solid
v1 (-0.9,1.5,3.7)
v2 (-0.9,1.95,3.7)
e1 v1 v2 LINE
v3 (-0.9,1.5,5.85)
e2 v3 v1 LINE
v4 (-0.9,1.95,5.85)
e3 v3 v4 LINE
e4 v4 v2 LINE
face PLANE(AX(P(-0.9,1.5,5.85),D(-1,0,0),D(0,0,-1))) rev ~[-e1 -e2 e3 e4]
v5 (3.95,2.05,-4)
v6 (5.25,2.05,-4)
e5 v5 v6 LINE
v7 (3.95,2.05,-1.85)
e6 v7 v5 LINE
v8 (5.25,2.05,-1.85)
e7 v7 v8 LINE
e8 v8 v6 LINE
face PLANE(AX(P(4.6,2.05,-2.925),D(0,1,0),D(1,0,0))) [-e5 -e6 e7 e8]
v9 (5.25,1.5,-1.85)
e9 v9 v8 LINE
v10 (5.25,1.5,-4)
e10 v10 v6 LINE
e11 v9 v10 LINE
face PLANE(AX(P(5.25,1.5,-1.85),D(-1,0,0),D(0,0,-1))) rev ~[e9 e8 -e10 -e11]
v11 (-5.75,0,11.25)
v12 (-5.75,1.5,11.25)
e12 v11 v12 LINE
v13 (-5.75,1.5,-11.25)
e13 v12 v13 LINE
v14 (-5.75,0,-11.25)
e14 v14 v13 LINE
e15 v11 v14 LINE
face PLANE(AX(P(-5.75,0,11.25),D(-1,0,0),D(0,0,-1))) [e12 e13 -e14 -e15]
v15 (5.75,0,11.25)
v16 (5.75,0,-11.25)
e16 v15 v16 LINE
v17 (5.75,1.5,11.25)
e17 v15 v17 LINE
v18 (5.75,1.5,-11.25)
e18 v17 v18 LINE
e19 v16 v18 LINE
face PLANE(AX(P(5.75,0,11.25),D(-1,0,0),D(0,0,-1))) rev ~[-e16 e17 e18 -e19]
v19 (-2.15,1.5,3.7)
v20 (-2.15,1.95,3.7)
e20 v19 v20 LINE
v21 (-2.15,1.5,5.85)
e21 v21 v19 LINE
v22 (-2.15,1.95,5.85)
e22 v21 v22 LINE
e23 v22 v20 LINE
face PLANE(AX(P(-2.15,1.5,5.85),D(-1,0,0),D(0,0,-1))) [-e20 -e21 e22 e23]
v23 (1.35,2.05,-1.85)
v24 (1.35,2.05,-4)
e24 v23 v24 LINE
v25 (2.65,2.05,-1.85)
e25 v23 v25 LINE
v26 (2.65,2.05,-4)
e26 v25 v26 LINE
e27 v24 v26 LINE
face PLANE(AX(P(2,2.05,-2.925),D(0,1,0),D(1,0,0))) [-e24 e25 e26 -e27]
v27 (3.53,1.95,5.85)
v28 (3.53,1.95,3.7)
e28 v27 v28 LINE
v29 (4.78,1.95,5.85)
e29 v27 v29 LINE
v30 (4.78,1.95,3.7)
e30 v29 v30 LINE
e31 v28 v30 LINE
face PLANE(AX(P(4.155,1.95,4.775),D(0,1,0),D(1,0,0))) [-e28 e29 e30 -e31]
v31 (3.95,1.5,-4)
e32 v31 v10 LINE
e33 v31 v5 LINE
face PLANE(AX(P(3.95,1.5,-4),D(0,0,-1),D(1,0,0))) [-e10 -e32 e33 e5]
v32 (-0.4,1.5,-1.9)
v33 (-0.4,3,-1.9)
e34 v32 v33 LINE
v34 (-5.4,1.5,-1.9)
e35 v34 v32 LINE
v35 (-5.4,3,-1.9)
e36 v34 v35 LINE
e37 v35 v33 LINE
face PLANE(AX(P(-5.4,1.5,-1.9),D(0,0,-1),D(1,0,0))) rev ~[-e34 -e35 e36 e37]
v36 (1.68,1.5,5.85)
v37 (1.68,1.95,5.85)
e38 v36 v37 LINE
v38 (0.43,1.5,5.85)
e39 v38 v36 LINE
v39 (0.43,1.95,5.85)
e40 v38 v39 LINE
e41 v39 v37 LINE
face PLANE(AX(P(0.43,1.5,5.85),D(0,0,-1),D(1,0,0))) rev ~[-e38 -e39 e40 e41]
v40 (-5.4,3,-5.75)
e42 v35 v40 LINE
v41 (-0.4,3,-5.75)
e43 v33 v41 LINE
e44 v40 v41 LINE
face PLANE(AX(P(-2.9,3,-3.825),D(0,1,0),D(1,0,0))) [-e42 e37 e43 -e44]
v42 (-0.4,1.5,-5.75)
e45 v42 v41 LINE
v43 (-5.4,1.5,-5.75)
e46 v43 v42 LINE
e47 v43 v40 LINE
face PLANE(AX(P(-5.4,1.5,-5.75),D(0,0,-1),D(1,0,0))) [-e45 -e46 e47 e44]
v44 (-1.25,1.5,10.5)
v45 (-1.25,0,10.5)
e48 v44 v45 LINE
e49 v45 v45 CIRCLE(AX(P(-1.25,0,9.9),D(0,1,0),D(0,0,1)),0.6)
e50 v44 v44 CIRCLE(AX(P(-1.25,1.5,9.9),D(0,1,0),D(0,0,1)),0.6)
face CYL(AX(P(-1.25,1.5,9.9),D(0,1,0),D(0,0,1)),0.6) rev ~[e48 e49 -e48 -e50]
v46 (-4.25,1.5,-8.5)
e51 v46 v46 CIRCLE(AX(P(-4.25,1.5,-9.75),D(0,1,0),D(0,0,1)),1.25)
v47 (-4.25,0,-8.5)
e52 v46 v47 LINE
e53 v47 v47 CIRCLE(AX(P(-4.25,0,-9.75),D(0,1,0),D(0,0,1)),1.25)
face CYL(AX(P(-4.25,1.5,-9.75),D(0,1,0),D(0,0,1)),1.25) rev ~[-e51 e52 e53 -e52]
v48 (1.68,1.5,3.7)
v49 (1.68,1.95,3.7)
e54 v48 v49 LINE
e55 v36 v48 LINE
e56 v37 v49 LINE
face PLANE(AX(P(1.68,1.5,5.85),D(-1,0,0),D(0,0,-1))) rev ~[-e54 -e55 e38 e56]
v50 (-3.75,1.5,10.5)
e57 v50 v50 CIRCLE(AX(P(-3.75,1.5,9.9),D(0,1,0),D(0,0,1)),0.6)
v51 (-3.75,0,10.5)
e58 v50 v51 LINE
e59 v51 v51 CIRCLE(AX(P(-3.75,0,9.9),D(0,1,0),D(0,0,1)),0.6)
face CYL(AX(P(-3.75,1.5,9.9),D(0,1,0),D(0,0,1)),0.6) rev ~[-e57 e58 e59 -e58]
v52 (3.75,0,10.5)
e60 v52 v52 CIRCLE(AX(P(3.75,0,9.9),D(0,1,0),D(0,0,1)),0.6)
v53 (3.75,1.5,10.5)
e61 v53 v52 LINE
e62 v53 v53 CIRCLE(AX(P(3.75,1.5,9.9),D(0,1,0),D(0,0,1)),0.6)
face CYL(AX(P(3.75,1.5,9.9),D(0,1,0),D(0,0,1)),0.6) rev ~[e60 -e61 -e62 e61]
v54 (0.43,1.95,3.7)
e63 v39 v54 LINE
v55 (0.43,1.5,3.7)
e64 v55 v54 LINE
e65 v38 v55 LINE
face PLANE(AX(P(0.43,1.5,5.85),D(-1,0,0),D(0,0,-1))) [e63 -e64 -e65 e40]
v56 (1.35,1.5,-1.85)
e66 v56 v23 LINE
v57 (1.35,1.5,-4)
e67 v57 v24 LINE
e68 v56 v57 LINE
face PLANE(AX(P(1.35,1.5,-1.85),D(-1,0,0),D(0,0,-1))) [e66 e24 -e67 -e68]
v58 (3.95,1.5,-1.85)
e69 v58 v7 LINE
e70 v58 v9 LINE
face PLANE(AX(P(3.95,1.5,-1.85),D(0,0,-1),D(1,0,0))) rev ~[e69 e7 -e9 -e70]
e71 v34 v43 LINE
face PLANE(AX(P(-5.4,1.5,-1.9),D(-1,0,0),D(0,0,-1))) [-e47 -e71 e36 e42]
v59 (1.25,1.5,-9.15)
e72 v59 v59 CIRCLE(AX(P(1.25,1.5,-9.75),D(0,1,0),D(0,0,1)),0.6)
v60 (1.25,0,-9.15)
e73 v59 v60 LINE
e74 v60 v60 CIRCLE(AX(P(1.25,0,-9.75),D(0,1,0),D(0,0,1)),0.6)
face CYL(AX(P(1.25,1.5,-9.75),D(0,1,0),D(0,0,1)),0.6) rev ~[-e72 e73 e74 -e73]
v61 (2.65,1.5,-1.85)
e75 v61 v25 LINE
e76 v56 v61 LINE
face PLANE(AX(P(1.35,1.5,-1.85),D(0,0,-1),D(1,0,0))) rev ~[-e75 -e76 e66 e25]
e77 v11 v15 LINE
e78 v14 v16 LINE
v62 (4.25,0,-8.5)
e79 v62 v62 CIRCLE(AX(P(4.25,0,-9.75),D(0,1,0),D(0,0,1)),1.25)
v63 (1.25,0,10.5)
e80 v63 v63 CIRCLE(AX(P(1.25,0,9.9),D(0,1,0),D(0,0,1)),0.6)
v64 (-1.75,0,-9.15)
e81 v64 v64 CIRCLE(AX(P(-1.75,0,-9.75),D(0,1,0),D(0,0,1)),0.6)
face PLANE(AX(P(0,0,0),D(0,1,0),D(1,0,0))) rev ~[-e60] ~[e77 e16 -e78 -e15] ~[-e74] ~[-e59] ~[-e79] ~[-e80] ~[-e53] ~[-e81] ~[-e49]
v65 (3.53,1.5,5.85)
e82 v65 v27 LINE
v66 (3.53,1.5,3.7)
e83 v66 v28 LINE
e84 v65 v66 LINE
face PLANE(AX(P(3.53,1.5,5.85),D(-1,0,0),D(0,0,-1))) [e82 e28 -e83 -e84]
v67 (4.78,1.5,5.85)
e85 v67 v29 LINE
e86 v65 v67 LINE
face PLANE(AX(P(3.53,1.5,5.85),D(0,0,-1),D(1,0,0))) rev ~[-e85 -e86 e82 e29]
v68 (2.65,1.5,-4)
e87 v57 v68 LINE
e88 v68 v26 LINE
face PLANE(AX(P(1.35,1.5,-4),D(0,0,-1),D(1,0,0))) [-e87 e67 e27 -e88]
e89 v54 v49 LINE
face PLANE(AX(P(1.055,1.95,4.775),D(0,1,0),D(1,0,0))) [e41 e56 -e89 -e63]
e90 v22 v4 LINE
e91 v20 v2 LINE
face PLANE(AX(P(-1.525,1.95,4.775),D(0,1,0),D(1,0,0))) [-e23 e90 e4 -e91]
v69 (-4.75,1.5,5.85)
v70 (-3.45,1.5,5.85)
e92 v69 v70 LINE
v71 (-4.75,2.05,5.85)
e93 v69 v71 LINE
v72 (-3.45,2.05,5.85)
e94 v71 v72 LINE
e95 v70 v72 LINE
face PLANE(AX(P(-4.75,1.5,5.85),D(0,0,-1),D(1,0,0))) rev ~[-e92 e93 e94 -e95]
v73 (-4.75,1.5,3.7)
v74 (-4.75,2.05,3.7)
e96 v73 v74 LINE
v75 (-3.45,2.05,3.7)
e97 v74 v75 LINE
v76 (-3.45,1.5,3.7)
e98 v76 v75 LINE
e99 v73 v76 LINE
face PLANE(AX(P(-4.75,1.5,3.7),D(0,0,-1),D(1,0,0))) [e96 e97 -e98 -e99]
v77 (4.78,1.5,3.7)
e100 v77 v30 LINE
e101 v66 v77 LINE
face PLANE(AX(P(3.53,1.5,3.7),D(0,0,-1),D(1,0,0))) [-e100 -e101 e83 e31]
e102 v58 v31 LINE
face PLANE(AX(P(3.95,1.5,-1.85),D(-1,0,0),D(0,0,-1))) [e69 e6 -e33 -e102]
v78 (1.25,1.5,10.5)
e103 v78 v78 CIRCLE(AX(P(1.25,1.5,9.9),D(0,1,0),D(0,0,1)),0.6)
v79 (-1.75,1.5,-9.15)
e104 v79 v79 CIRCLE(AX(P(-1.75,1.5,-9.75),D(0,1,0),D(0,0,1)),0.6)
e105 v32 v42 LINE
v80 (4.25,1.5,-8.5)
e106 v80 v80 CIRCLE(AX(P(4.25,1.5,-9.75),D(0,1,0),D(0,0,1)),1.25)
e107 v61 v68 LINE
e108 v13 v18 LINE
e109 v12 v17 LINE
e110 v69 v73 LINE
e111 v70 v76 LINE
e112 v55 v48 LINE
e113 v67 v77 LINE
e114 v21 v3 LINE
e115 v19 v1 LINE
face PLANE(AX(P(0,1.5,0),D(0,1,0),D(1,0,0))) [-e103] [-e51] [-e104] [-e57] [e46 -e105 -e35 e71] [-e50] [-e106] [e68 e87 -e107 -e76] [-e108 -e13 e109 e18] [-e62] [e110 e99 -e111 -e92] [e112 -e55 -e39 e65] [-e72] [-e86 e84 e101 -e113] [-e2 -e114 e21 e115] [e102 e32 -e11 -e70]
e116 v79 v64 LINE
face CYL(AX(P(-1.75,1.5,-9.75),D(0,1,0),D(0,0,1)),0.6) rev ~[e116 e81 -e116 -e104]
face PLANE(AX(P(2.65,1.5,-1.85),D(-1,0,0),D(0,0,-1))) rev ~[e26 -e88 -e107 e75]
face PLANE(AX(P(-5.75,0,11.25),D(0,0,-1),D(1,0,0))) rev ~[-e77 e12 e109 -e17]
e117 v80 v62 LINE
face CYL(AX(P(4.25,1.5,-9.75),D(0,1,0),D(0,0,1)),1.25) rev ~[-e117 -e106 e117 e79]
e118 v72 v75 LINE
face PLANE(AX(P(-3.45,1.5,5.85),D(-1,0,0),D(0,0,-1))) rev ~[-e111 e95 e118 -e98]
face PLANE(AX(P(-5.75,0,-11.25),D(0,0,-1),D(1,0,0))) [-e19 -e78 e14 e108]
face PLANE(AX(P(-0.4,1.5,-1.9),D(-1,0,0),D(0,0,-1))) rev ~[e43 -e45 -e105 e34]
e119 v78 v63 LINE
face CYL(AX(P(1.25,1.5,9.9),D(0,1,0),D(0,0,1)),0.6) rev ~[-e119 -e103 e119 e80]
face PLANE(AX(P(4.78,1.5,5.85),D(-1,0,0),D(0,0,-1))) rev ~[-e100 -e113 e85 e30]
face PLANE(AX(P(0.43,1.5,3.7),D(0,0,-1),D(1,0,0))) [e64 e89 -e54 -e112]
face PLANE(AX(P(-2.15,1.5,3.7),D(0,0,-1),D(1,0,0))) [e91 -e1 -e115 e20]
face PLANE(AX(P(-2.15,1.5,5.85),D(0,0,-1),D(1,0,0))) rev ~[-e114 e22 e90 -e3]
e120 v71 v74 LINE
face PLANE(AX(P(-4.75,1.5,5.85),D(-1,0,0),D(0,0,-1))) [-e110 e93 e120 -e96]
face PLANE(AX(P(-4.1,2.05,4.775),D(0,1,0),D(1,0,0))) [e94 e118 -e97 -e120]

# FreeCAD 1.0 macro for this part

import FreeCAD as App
import Part
import Sketcher
from FreeCAD import Vector
Q = App.Units.Quantity

doc = App.newDocument("Part")
body = doc.addObject("PartDesign::Body", "Body")

# Sketch on XZ plane
sketch1 = doc.addObject("Sketcher::SketchObject", "Sketch")
body.addObject(sketch1)
sketch1.AttachmentSupport = (doc.XZ_Plane, [""])
sketch1.MapMode = "FlatFace"
sketch1.addGeometry([
    Part.LineSegment(Vector(-6, -11, 0), Vector(-6, 11, 0)),
    Part.LineSegment(Vector(-6, 11, 0), Vector(6, 11, 0)),
    Part.LineSegment(Vector(6, 11, 0), Vector(6, -11, 0)),
    Part.LineSegment(Vector(6, -11, 0), Vector(-6, -11, 0)),
], False)
sketch1.addConstraint([
    Sketcher.Constraint("Coincident", 0, 2, 1, 1),
    Sketcher.Constraint("Coincident", 1, 2, 2, 1),
    Sketcher.Constraint("Coincident", 2, 2, 3, 1),
    Sketcher.Constraint("Coincident", 3, 2, 0, 1),
    Sketcher.Constraint("Vertical", 0),
    Sketcher.Constraint("Horizontal", 1),
    Sketcher.Constraint("Vertical", 2),
    Sketcher.Constraint("Horizontal", 3),
    Sketcher.Constraint("Symmetric", 0, 2, 2, 2, -1, 1),
    Sketcher.Constraint("DistanceX", 1, 1, 1, 2, Q("11.5 mm")),
    Sketcher.Constraint("DistanceY", 0, 1, 0, 2, Q("22.5 mm")),
])
pad1 = doc.addObject("PartDesign::Pad", "Pad")
body.addObject(pad1)
pad1.Profile = sketch1
pad1.Length = 1.5
pad1.Reversed = True

# Sketch on XZ plane
sketch2 = doc.addObject("Sketcher::SketchObject", "Sketch001")
body.addObject(sketch2)
sketch2.AttachmentSupport = (doc.XZ_Plane, [""])
sketch2.MapMode = "FlatFace"
sketch2.AttachmentOffset = App.Placement(Vector(0, 0, -1.5), App.Rotation())
sketch2.addGeometry(Part.Circle(Vector(-3.8, 9.9, 0), Vector(0, 0, 1), 0.6), False)
sketch2.addConstraint([
    Sketcher.Constraint("Diameter", 0, Q("1.2 mm")),
    Sketcher.Constraint("DistanceY", -1, 1, 0, 3, Q("9.9 mm")),
    Sketcher.Constraint("DistanceX", 0, 3, -1, 1, Q("3.75 mm")),
])
pocket1 = doc.addObject("PartDesign::Pocket", "Pocket")
body.addObject(pocket1)
pocket1.Profile = sketch2
pocket1.Type = "ThroughAll"
pocket1.Reversed = True
doc.recompute()

linearpattern = doc.addObject("PartDesign::LinearPattern", "LinearPattern")
body.addObject(linearpattern)
linearpattern.Originals = [pocket1]
linearpattern.Direction = (doc.X_Axis, [""])
linearpattern.Mode = "offset"
linearpattern.Offset = 2.5
linearpattern.Occurrences = 4
body.Tip = linearpattern

# Sketch on XZ plane
sketch3 = doc.addObject("Sketcher::SketchObject", "Sketch002")
body.addObject(sketch3)
sketch3.AttachmentSupport = (doc.XZ_Plane, [""])
sketch3.MapMode = "FlatFace"
sketch3.AttachmentOffset = App.Placement(Vector(0, 0, -1.5), App.Rotation())
sketch3.addGeometry(Part.Circle(Vector(-1.8, -9.8, 0), Vector(0, 0, 1), 0.6), False)
sketch3.addConstraint([
    Sketcher.Constraint("Diameter", 0, Q("1.2 mm")),
    Sketcher.Constraint("DistanceX", 0, 3, -1, 1, Q("1.75 mm")),
    Sketcher.Constraint("DistanceY", 0, 3, -1, 1, Q("9.75 mm")),
])
pocket2 = doc.addObject("PartDesign::Pocket", "Pocket001")
body.addObject(pocket2)
pocket2.Profile = sketch3
pocket2.Type = "ThroughAll"
pocket2.Reversed = True
doc.recompute()

linearpattern2 = doc.addObject("PartDesign::LinearPattern", "LinearPattern001")
body.addObject(linearpattern2)
linearpattern2.Originals = [pocket2]
linearpattern2.Direction = (doc.X_Axis, [""])
linearpattern2.Mode = "offset"
linearpattern2.Offset = 3
linearpattern2.Occurrences = 2
body.Tip = linearpattern2

# Sketch on XZ plane
sketch4 = doc.addObject("Sketcher::SketchObject", "Sketch003")
body.addObject(sketch4)
sketch4.AttachmentSupport = (doc.XZ_Plane, [""])
sketch4.MapMode = "FlatFace"
sketch4.AttachmentOffset = App.Placement(Vector(0, 0, -1.5), App.Rotation())
sketch4.addGeometry([
    Part.Circle(Vector(-4.2, -9.8, 0), Vector(0, 0, 1), 1.2),
    Part.Circle(Vector(4.2, -9.8, 0), Vector(0, 0, 1), 1.2),
], False)
sketch4.addConstraint([
    Sketcher.Constraint("Equal", 0, 1),
    Sketcher.Constraint("Symmetric", 0, 3, 1, 3, -2),
    Sketcher.Constraint("Diameter", 0, Q("2.5 mm")),
    Sketcher.Constraint("DistanceX", 0, 3, 1, 3, Q("8.5 mm")),
    Sketcher.Constraint("DistanceY", 0, 3, -1, 1, Q("9.75 mm")),
])
pocket3 = doc.addObject("PartDesign::Pocket", "Pocket002")
body.addObject(pocket3)
pocket3.Profile = sketch4
pocket3.Type = "ThroughAll"
pocket3.Reversed = True

# Sketch on XZ plane
sketch5 = doc.addObject("Sketcher::SketchObject", "Sketch004")
body.addObject(sketch5)
sketch5.AttachmentSupport = (doc.XZ_Plane, [""])
sketch5.MapMode = "FlatFace"
sketch5.AttachmentOffset = App.Placement(Vector(0, 0, -1.5), App.Rotation())
sketch5.addGeometry([
    Part.LineSegment(Vector(1.4, -4, 0), Vector(1.4, -1.9, 0)),  # 0
    Part.LineSegment(Vector(1.4, -1.9, 0), Vector(2.6, -1.9, 0)),  # 1
    Part.LineSegment(Vector(2.6, -1.9, 0), Vector(2.6, -4, 0)),  # 2
    Part.LineSegment(Vector(2.6, -4, 0), Vector(1.4, -4, 0)),  # 3
    Part.LineSegment(Vector(4, -4, 0), Vector(4, -1.9, 0)),  # 4
    Part.LineSegment(Vector(4, -1.9, 0), Vector(5.2, -1.9, 0)),  # 5
    Part.LineSegment(Vector(5.2, -1.9, 0), Vector(5.2, -4, 0)),  # 6
    Part.LineSegment(Vector(5.2, -4, 0), Vector(4, -4, 0)),  # 7
    Part.LineSegment(Vector(-4.8, 3.7, 0), Vector(-4.8, 5.8, 0)),  # 8
    Part.LineSegment(Vector(-4.8, 5.8, 0), Vector(-3.5, 5.8, 0)),  # 9
    Part.LineSegment(Vector(-3.5, 5.8, 0), Vector(-3.5, 3.7, 0)),  # 10
    Part.LineSegment(Vector(-3.5, 3.7, 0), Vector(-4.8, 3.7, 0)),  # 11
], False)
sketch5.addConstraint([
    Sketcher.Constraint("Coincident", 0, 2, 1, 1),
    Sketcher.Constraint("Coincident", 1, 2, 2, 1),
    Sketcher.Constraint("Coincident", 2, 2, 3, 1),
    Sketcher.Constraint("Coincident", 3, 2, 0, 1),
    Sketcher.Constraint("Coincident", 4, 2, 5, 1),
    Sketcher.Constraint("Coincident", 5, 2, 6, 1),
    Sketcher.Constraint("Coincident", 6, 2, 7, 1),
    Sketcher.Constraint("Coincident", 7, 2, 4, 1),
    Sketcher.Constraint("Coincident", 8, 2, 9, 1),
    Sketcher.Constraint("Coincident", 9, 2, 10, 1),
    Sketcher.Constraint("Coincident", 10, 2, 11, 1),
    Sketcher.Constraint("Coincident", 11, 2, 8, 1),
    Sketcher.Constraint("Vertical", 0),
    Sketcher.Constraint("Horizontal", 1),
    Sketcher.Constraint("Vertical", 2),
    Sketcher.Constraint("Horizontal", 3),
    Sketcher.Constraint("Vertical", 4),
    Sketcher.Constraint("Horizontal", 5),
    Sketcher.Constraint("Vertical", 6),
    Sketcher.Constraint("Horizontal", 7),
    Sketcher.Constraint("Vertical", 8),
    Sketcher.Constraint("Horizontal", 9),
    Sketcher.Constraint("Vertical", 10),
    Sketcher.Constraint("Horizontal", 11),
    Sketcher.Constraint("Horizontal", 1, 2, 4, 2),
    Sketcher.Constraint("Horizontal", 3, 2, 6, 2),
    Sketcher.Constraint("Equal", 3, 5),
    Sketcher.Constraint("Equal", 7, 9),
    Sketcher.Constraint("Equal", 6, 8),
    Sketcher.Constraint("DistanceX", 1, 1, 1, 2, Q("1.3 mm")),
    Sketcher.Constraint("DistanceY", 2, 2, -1, 1, Q("4 mm")),
    Sketcher.Constraint("DistanceY", 0, 1, 0, 2, Q("2.15 mm")),
    Sketcher.Constraint("DistanceY", -1, 1, 10, 2, Q("3.7 mm")),
    Sketcher.Constraint("DistanceX", 1, 2, 4, 2, Q("1.3 mm")),
    Sketcher.Constraint("DistanceX", 8, 2, 0, 2, Q("6.1 mm")),
    Sketcher.Constraint("DistanceX", -1, 1, 0, 2, Q("1.35 mm")),
])
pad2 = doc.addObject("PartDesign::Pad", "Pad001")
body.addObject(pad2)
pad2.Profile = sketch5
pad2.Length = 0.55
pad2.Reversed = True

# Sketch on XZ plane
sketch6 = doc.addObject("Sketcher::SketchObject", "Sketch005")
body.addObject(sketch6)
sketch6.AttachmentSupport = (doc.XZ_Plane, [""])
sketch6.MapMode = "FlatFace"
sketch6.AttachmentOffset = App.Placement(Vector(0, 0, -1.5), App.Rotation())
sketch6.addGeometry([
    Part.LineSegment(Vector(-2.1, 3.7, 0), Vector(-2.1, 5.8, 0)),  # 0
    Part.LineSegment(Vector(-2.1, 5.8, 0), Vector(-0.9, 5.8, 0)),  # 1
    Part.LineSegment(Vector(-0.9, 5.8, 0), Vector(-0.9, 3.7, 0)),  # 2
    Part.LineSegment(Vector(-0.9, 3.7, 0), Vector(-2.1, 3.7, 0)),  # 3
    Part.LineSegment(Vector(0.4, 3.7, 0), Vector(0.4, 5.8, 0)),  # 4
    Part.LineSegment(Vector(0.4, 5.8, 0), Vector(1.7, 5.8, 0)),  # 5
    Part.LineSegment(Vector(1.7, 5.8, 0), Vector(1.7, 3.7, 0)),  # 6
    Part.LineSegment(Vector(1.7, 3.7, 0), Vector(0.4, 3.7, 0)),  # 7
    Part.LineSegment(Vector(3.5, 3.7, 0), Vector(3.5, 5.8, 0)),  # 8
    Part.LineSegment(Vector(3.5, 5.8, 0), Vector(4.8, 5.8, 0)),  # 9
    Part.LineSegment(Vector(4.8, 5.8, 0), Vector(4.8, 3.7, 0)),  # 10
    Part.LineSegment(Vector(4.8, 3.7, 0), Vector(3.5, 3.7, 0)),  # 11
], False)
sketch6.addConstraint([
    Sketcher.Constraint("Coincident", 0, 2, 1, 1),
    Sketcher.Constraint("Coincident", 1, 2, 2, 1),
    Sketcher.Constraint("Coincident", 2, 2, 3, 1),
    Sketcher.Constraint("Coincident", 3, 2, 0, 1),
    Sketcher.Constraint("Coincident", 4, 2, 5, 1),
    Sketcher.Constraint("Coincident", 5, 2, 6, 1),
    Sketcher.Constraint("Coincident", 6, 2, 7, 1),
    Sketcher.Constraint("Coincident", 7, 2, 4, 1),
    Sketcher.Constraint("Coincident", 8, 2, 9, 1),
    Sketcher.Constraint("Coincident", 9, 2, 10, 1),
    Sketcher.Constraint("Coincident", 10, 2, 11, 1),
    Sketcher.Constraint("Coincident", 11, 2, 8, 1),
    Sketcher.Constraint("Vertical", 0),
    Sketcher.Constraint("Horizontal", 1),
    Sketcher.Constraint("Vertical", 2),
    Sketcher.Constraint("Horizontal", 3),
    Sketcher.Constraint("Vertical", 4),
    Sketcher.Constraint("Horizontal", 5),
    Sketcher.Constraint("Vertical", 6),
    Sketcher.Constraint("Horizontal", 7),
    Sketcher.Constraint("Vertical", 8),
    Sketcher.Constraint("Horizontal", 9),
    Sketcher.Constraint("Vertical", 10),
    Sketcher.Constraint("Horizontal", 11),
    Sketcher.Constraint("Horizontal", 1, 2, 4, 2),
    Sketcher.Constraint("Horizontal", 3, 2, 6, 2),
    Sketcher.Constraint("Horizontal", 5, 2, 8, 2),
    Sketcher.Constraint("Horizontal", 7, 2, 10, 2),
    Sketcher.Constraint("Equal", 3, 5),
    Sketcher.Constraint("Equal", 7, 9),
    Sketcher.Constraint("DistanceX", 1, 1, 1, 2, Q("1.25 mm")),
    Sketcher.Constraint("DistanceY", 0, 1, 0, 2, Q("2.15 mm")),
    Sketcher.Constraint("DistanceX", 1, 2, -1, 1, Q("0.9 mm")),
    Sketcher.Constraint("DistanceY", -1, 1, 2, 2, Q("3.7 mm")),
    Sketcher.Constraint("DistanceX", 4, 2, 8, 2, Q("3.1 mm")),
    Sketcher.Constraint("DistanceX", -1, 1, 4, 2, Q("0.43 mm")),
])
pad3 = doc.addObject("PartDesign::Pad", "Pad002")
body.addObject(pad3)
pad3.Profile = sketch6
pad3.Length = 0.45
pad3.Reversed = True

# Sketch on XZ plane
sketch7 = doc.addObject("Sketcher::SketchObject", "Sketch006")
body.addObject(sketch7)
sketch7.AttachmentSupport = (doc.XZ_Plane, [""])
sketch7.MapMode = "FlatFace"
sketch7.AttachmentOffset = App.Placement(Vector(0, 0, -1.5), App.Rotation())
sketch7.addGeometry([
    Part.LineSegment(Vector(-5.4, -5.8, 0), Vector(-5.4, -1.9, 0)),
    Part.LineSegment(Vector(-5.4, -1.9, 0), Vector(-0.4, -1.9, 0)),
    Part.LineSegment(Vector(-0.4, -1.9, 0), Vector(-0.4, -5.8, 0)),
    Part.LineSegment(Vector(-0.4, -5.8, 0), Vector(-5.4, -5.8, 0)),
], False)
sketch7.addConstraint([
    Sketcher.Constraint("Coincident", 0, 2, 1, 1),
    Sketcher.Constraint("Coincident", 1, 2, 2, 1),
    Sketcher.Constraint("Coincident", 2, 2, 3, 1),
    Sketcher.Constraint("Coincident", 3, 2, 0, 1),
    Sketcher.Constraint("Vertical", 0),
    Sketcher.Constraint("Horizontal", 1),
    Sketcher.Constraint("Vertical", 2),
    Sketcher.Constraint("Horizontal", 3),
    Sketcher.Constraint("DistanceX", 1, 1, 1, 2, Q("5 mm")),
    Sketcher.Constraint("DistanceY", 0, 1, 0, 2, Q("3.85 mm")),
    Sketcher.Constraint("DistanceX", 0, 2, -1, 1, Q("5.4 mm")),
    Sketcher.Constraint("DistanceY", 0, 2, -1, 1, Q("1.9 mm")),
])
pad4 = doc.addObject("PartDesign::Pad", "Pad003")
body.addObject(pad4)
pad4.Profile = sketch7
pad4.Length = 1.5
pad4.Reversed = True

doc.recompute()
